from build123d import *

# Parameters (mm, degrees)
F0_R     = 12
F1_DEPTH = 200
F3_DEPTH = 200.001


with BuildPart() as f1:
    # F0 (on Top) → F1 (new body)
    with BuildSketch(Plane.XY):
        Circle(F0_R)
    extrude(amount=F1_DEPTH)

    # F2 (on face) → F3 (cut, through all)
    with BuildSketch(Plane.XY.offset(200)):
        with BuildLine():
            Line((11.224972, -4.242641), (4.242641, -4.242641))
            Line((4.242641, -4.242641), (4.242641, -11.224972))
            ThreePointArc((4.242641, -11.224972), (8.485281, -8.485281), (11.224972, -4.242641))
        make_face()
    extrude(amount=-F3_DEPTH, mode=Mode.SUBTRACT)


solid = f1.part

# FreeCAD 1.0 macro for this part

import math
import FreeCAD as App
import Part
import Sketcher

V = App.Vector
Q = App.Units.Quantity

doc = App.newDocument("Part")
body = doc.addObject("PartDesign::Body", "Body")

# Sketch on XY plane
sketch1 = body.newObject("Sketcher::SketchObject", "Sketch")
sketch1.AttachmentSupport = (doc.getObject("XY_Plane"), [""])
sketch1.MapMode = "FlatFace"
sketch1.addGeometry(Part.Circle(V(0, 0, 0), V(0, 0, 1), 12), False)
sketch1.addConstraint(Sketcher.Constraint("Coincident", 0, 3, -1, 1))
sketch1.addConstraint(Sketcher.Constraint("Diameter", 0, Q("24 mm")))
pad1 = body.newObject("PartDesign::Pad", "Pad")
pad1.Profile = sketch1
pad1.Length = 200

# Sketch on XY plane
sketch2 = body.newObject("Sketcher::SketchObject", "Sketch001")
sketch2.AttachmentSupport = (doc.getObject("XY_Plane"), [""])
sketch2.MapMode = "FlatFace"
sketch2.AttachmentOffset = App.Placement(V(0, 0, 200), App.Rotation())
sketch2.addGeometry(Part.LineSegment(V(11.224972, -4.242641, 0), V(4.242641, -4.242641, 0)), False)
sketch2.addGeometry(Part.LineSegment(V(4.242641, -4.242641, 0), V(4.242641, -11.224972, 0)), False)
sketch2.addGeometry(Part.ArcOfCircle(Part.Circle(V(-0.000004, 0.000004, 0), V(0, 0, 1), 12.000005), math.radians(-69.295176), math.radians(-20.704824)), False)
sketch2.addConstraint(Sketcher.Constraint("Coincident", 0, 2, 1, 1))
sketch2.addConstraint(Sketcher.Constraint("Coincident", 1, 2, 2, 1))
sketch2.addConstraint(Sketcher.Constraint("Coincident", 2, 2, 0, 1))
sketch2.addConstraint(Sketcher.Constraint("Horizontal", 0))
sketch2.addConstraint(Sketcher.Constraint("Vertical", 1))
sketch2.addConstraint(Sketcher.Constraint("Coincident", 2, 3, -1, 1))
sketch2.addConstraint(Sketcher.Constraint("Equal", 0, 1))
sketch2.addConstraint(Sketcher.Constraint("Radius", 2, Q("12.000005 mm")))
sketch2.addConstraint(Sketcher.Constraint("DistanceX", 0, 2, 0, 1, Q("6.982331 mm")))
pocket1 = body.newObject("PartDesign::Pocket", "Pocket")
pocket1.Profile = sketch2
pocket1.Type = "ThroughAll"

doc.recompute()
